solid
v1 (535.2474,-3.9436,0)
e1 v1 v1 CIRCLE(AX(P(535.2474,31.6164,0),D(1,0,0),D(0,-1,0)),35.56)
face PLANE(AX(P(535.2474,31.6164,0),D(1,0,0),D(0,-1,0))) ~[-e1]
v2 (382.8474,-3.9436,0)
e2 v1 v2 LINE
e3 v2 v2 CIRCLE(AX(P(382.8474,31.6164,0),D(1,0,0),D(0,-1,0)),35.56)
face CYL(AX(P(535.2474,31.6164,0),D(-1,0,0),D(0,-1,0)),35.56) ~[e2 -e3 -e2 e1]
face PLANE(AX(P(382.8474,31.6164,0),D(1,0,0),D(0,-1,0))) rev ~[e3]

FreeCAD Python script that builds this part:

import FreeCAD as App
import Part
import Sketcher
from FreeCAD import Vector
Q = App.Units.Quantity

doc = App.newDocument("Part")
body = doc.addObject("PartDesign::Body", "Body")

sketch1 = body.newObject("Sketcher::SketchObject", "Sketch")
sketch1.AttachmentSupport = (doc.getObject("XY_Plane"), [""])
sketch1.MapMode = "FlatFace"
sketch1.addGeometry([
    Part.LineSegment(Vector(535, 32, 0), Vector(383, 32, 0)),
    Part.LineSegment(Vector(383, 32, 0), Vector(383, -4, 0)),
    Part.LineSegment(Vector(383, -4, 0), Vector(535, -4, 0)),
    Part.LineSegment(Vector(535, -4, 0), Vector(535, 32, 0)),
], False)
sketch1.addGeometry(Part.LineSegment(Vector(383, 32, 0), Vector(535, 32, 0)), True)
sketch1.addConstraint([
    Sketcher.Constraint("Coincident", 0, 2, 1, 1),
    Sketcher.Constraint("Coincident", 1, 2, 2, 1),
    Sketcher.Constraint("Coincident", 2, 2, 3, 1),
    Sketcher.Constraint("Coincident", 3, 2, 0, 1),
    Sketcher.Constraint("Horizontal", 0),
    Sketcher.Constraint("Vertical", 1),
    Sketcher.Constraint("Horizontal", 2),
    Sketcher.Constraint("Vertical", 3),
    Sketcher.Constraint("Horizontal", 4),
    Sketcher.Constraint("Coincident", 4, 1, 0, 2),
    Sketcher.Constraint("Vertical", 2, 2, 4, 2),
    Sketcher.Constraint("DistanceX", 0, 2, 0, 1, Q("6 in")),
    Sketcher.Constraint("DistanceY", 1, 2, 1, 1, Q("1.4 in")),
    Sketcher.Constraint("DistanceX", -1, 1, 0, 2, 382.8474),
    Sketcher.Constraint("DistanceY", -1, 1, 0, 2, 31.6164),
])
revolution = body.newObject("PartDesign::Revolution", "Revolution")
revolution.Profile = sketch1
revolution.ReferenceAxis = (sketch1, ["Axis0"])
revolution.Angle = 360

doc.recompute()
